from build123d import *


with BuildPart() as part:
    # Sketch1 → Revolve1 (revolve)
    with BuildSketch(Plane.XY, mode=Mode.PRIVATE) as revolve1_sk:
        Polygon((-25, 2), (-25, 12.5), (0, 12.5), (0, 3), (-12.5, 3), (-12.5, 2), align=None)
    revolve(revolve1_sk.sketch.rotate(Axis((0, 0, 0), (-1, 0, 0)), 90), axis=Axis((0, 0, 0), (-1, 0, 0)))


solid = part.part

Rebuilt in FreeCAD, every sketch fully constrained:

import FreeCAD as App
import Part
import Sketcher
from FreeCAD import Vector
Q = App.Units.Quantity

doc = App.newDocument("Part")
body = doc.addObject("PartDesign::Body", "Body")

# Sketch on XY plane
sketch1 = body.newObject("Sketcher::SketchObject", "Sketch")
sketch1.AttachmentSupport = (doc.getObject("XY_Plane"), [""])
sketch1.MapMode = "FlatFace"
sketch1.addGeometry([
    Part.LineSegment(Vector(-25, 12.5, 0), Vector(-25, 2, 0)),  # 0
    Part.LineSegment(Vector(-25, 2, 0), Vector(-12.5, 2, 0)),  # 1
    Part.LineSegment(Vector(-12.5, 2, 0), Vector(-12.5, 3, 0)),  # 2
    Part.LineSegment(Vector(-12.5, 3, 0), Vector(0, 3, 0)),  # 3
    Part.LineSegment(Vector(0, 3, 0), Vector(0, 12.5, 0)),  # 4
    Part.LineSegment(Vector(0, 12.5, 0), Vector(-25, 12.5, 0)),  # 5
], False)
sketch1.addConstraint([
    Sketcher.Constraint("Coincident", 0, 2, 1, 1),
    Sketcher.Constraint("Coincident", 1, 2, 2, 1),
    Sketcher.Constraint("Coincident", 2, 2, 3, 1),
    Sketcher.Constraint("Coincident", 3, 2, 4, 1),
    Sketcher.Constraint("Coincident", 4, 2, 5, 1),
    Sketcher.Constraint("Coincident", 5, 2, 0, 1),
    Sketcher.Constraint("Vertical", 0),
    Sketcher.Constraint("Horizontal", 1),
    Sketcher.Constraint("Vertical", 2),
    Sketcher.Constraint("Horizontal", 3),
    Sketcher.Constraint("Vertical", 4),
    Sketcher.Constraint("Horizontal", 5),
    Sketcher.Constraint("PointOnObject", 3, 2, -2),
    Sketcher.Constraint("Equal", 1, 3),
    Sketcher.Constraint("DistanceX", 5, 2, 5, 1, Q("25 mm")),
    Sketcher.Constraint("DistanceY", 2, 1, 2, 2, Q("1 mm")),
    Sketcher.Constraint("DistanceY", 0, 2, 0, 1, Q("10.5 mm")),
    Sketcher.Constraint("DistanceY", -1, 1, 0, 2, Q("2 mm")),
])
revolution = body.newObject("PartDesign::Revolution", "Revolution")
revolution.Profile = sketch1
revolution.ReferenceAxis = (sketch1, ["H_Axis"])
revolution.Angle = 360

doc.recompute()
